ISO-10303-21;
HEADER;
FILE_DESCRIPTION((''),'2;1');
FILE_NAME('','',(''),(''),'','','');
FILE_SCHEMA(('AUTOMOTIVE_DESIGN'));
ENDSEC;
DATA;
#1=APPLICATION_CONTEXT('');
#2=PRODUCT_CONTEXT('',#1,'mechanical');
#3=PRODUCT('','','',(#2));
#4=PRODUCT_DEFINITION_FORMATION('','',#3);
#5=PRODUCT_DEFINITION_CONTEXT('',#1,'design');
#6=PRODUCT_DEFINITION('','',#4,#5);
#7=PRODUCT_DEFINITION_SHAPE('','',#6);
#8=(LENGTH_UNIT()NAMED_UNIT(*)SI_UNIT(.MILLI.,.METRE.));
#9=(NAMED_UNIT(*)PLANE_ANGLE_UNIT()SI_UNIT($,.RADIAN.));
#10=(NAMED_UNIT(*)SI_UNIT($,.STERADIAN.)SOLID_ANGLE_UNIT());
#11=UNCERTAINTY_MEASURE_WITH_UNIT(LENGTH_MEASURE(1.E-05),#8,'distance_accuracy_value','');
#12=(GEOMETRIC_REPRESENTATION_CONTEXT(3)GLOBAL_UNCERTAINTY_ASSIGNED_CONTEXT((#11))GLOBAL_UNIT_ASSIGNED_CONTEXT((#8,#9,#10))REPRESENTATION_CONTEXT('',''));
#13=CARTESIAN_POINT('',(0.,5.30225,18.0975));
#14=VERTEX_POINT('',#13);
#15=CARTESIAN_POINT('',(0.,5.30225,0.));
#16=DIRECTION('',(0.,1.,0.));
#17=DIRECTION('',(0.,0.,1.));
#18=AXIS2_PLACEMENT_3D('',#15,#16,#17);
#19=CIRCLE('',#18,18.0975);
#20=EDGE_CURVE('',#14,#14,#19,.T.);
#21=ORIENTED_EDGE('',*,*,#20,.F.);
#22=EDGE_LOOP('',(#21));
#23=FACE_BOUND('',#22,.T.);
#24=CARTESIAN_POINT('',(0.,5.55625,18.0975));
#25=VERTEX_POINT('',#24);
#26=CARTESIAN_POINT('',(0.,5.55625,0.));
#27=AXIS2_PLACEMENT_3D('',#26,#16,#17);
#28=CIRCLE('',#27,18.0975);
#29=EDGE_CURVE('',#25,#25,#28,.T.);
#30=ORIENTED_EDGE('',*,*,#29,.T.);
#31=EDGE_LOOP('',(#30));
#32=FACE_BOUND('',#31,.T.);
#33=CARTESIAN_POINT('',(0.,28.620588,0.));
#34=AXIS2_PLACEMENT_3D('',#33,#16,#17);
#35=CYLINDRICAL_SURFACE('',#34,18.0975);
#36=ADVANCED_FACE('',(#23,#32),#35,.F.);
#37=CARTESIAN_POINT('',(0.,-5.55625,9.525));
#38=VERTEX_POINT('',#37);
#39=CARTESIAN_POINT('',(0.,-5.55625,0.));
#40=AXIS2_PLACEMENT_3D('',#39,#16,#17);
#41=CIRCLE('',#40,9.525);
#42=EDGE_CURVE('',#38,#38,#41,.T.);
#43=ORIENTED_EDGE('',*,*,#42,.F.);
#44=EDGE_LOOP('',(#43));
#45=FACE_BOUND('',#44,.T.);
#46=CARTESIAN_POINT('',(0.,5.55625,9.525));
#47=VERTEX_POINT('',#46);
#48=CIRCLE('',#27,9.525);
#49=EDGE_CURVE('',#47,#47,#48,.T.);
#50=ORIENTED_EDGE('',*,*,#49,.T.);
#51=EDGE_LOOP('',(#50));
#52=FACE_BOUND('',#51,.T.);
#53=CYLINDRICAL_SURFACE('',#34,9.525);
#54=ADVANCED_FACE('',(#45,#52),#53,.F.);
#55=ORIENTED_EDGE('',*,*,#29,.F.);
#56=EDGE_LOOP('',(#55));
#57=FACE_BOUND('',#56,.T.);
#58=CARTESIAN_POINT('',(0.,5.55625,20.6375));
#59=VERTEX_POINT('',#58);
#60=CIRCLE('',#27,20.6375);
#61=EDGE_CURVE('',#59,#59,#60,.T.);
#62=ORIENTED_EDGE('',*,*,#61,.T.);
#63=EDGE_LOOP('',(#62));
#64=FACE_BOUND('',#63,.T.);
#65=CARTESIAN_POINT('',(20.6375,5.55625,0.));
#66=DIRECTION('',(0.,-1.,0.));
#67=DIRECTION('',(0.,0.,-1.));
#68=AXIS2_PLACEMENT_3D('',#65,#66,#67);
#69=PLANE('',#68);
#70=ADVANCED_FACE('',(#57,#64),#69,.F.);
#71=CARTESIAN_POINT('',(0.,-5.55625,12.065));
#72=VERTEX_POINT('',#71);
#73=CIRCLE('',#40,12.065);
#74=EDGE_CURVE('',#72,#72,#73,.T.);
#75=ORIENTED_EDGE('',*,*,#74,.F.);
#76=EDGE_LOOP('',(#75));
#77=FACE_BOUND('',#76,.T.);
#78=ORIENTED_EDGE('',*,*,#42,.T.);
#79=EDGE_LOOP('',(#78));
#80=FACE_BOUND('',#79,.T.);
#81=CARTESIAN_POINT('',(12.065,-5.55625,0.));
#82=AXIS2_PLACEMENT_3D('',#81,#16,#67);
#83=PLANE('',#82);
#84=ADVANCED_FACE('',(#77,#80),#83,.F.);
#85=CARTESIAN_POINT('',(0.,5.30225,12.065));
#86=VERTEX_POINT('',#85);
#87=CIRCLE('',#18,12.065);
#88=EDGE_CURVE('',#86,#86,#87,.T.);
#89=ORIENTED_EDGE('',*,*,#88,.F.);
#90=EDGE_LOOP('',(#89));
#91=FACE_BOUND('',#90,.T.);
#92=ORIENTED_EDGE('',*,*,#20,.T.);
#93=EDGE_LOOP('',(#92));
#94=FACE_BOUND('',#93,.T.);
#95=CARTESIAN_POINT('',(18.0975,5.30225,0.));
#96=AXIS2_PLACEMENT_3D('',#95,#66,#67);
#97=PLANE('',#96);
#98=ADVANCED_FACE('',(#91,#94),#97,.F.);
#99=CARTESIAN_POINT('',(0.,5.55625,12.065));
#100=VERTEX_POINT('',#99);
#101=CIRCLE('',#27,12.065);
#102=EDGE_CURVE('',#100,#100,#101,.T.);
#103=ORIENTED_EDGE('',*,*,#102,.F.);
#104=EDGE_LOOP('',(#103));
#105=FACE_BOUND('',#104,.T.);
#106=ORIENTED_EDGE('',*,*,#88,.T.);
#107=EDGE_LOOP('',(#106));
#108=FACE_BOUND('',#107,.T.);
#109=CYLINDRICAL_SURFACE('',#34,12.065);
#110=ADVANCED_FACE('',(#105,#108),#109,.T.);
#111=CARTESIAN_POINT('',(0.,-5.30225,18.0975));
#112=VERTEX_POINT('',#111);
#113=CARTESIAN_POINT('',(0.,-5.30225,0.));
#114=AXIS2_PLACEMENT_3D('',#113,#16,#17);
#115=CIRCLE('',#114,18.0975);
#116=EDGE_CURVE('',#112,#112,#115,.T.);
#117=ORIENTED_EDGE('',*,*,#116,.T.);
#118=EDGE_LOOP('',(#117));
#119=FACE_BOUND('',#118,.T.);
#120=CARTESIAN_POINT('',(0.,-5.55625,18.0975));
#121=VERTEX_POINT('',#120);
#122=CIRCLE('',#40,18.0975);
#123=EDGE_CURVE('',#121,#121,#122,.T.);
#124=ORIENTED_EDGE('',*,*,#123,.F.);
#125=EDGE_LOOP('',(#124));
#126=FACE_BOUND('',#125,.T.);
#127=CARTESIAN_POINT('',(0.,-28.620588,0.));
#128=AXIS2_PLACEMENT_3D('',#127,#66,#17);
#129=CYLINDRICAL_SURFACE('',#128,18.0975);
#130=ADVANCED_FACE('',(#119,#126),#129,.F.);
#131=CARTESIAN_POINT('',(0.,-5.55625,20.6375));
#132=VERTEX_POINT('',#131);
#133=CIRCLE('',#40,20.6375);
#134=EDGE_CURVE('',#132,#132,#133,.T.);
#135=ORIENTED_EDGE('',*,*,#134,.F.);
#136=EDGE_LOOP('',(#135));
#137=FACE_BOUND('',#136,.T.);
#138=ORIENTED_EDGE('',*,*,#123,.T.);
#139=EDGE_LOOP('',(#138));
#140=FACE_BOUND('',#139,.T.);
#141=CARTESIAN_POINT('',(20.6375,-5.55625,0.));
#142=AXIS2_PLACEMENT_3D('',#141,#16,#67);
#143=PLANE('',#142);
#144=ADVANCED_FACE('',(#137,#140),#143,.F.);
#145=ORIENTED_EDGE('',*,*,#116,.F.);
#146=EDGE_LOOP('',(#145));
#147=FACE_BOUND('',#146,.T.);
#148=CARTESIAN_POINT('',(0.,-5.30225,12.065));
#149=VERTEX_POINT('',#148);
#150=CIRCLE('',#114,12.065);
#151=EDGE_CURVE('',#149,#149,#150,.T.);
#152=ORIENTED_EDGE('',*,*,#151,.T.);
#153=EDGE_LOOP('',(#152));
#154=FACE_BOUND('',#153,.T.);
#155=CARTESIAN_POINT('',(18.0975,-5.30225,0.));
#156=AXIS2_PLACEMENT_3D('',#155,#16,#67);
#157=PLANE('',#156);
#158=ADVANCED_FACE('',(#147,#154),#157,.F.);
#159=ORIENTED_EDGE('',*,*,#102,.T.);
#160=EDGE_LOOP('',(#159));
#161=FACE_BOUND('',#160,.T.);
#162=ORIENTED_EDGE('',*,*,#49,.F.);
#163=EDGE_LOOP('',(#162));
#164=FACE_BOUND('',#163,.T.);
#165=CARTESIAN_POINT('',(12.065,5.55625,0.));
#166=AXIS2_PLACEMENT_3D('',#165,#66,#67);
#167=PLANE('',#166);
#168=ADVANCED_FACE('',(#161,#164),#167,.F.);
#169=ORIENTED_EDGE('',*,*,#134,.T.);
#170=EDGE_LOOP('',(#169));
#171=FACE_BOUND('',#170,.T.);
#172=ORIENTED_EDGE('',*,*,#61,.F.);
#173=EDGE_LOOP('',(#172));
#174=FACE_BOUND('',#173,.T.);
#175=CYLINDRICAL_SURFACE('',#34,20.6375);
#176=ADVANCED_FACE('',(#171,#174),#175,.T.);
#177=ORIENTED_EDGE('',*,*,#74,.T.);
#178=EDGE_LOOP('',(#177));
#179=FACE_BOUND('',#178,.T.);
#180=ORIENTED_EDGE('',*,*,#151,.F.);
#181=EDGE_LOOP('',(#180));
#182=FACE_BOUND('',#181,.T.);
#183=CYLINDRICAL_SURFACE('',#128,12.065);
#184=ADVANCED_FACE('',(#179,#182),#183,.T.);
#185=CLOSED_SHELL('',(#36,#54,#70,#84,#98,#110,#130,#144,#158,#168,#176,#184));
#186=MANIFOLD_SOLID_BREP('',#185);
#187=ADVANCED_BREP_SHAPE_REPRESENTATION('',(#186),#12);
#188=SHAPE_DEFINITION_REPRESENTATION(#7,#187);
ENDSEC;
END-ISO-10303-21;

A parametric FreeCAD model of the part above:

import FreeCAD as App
import Part
import Sketcher

V = App.Vector
Q = App.Units.Quantity

doc = App.newDocument("Part")
params = doc.addObject("Spreadsheet::Sheet", "Params")
for row, (alias, value) in enumerate([
    ("sketch1_width", "0.1 in"),
    ("sketch1_height", "0.01 in"),
    ("sketch1_width2", "0.4375 in"),
    ("sketch1_height2", "0.21875 in"),
    ("revolution_angle", "360 deg"),
], start=1):
    params.set(f"A{row}", alias)
    params.set(f"B{row}", "=" + value)
    params.setAlias(f"B{row}", alias)

body = doc.addObject("PartDesign::Body", "Body")

# Sketch on XY plane
sketch1 = body.newObject("Sketcher::SketchObject", "Sketch")
sketch1.AttachmentSupport = (doc.getObject("XY_Plane"), [""])
sketch1.MapMode = "FlatFace"
sketch1.addGeometry([
    Part.LineSegment(V(9.53, 0, 0), V(20.64, 0, 0)),  # 0
    Part.LineSegment(V(20.64, 0, 0), V(20.64, 5.56, 0)),  # 1
    Part.LineSegment(V(20.64, 5.56, 0), V(18.1, 5.56, 0)),  # 2
    Part.LineSegment(V(18.1, 5.56, 0), V(18.1, 5.3, 0)),  # 3
    Part.LineSegment(V(18.1, 5.3, 0), V(12.06, 5.3, 0)),  # 4
    Part.LineSegment(V(12.06, 5.3, 0), V(12.06, 5.56, 0)),  # 5
    Part.LineSegment(V(12.06, 5.56, 0), V(9.53, 5.56, 0)),  # 6
    Part.LineSegment(V(9.53, 5.56, 0), V(9.53, 0, 0)),  # 7
], False)
sketch1.addConstraint([
    Sketcher.Constraint("Coincident", 0, 2, 1, 1),
    Sketcher.Constraint("Coincident", 1, 2, 2, 1),
    Sketcher.Constraint("Coincident", 2, 2, 3, 1),
    Sketcher.Constraint("Coincident", 3, 2, 4, 1),
    Sketcher.Constraint("Coincident", 4, 2, 5, 1),
    Sketcher.Constraint("Coincident", 5, 2, 6, 1),
    Sketcher.Constraint("Coincident", 6, 2, 7, 1),
    Sketcher.Constraint("Coincident", 7, 2, 0, 1),
    Sketcher.Constraint("Horizontal", 0),
    Sketcher.Constraint("Vertical", 1),
    Sketcher.Constraint("Horizontal", 2),
    Sketcher.Constraint("Vertical", 3),
    Sketcher.Constraint("Horizontal", 4),
    Sketcher.Constraint("Vertical", 5),
    Sketcher.Constraint("Horizontal", 6),
    Sketcher.Constraint("Vertical", 7),
    Sketcher.Constraint("PointOnObject", 0, 2, -1),
    Sketcher.Constraint("Horizontal", 2, 2, 5, 2),
    Sketcher.Constraint("Equal", 2, 6),
    Sketcher.Constraint("DistanceX", 2, 2, 2, 1, Q("0.1 in")),
    Sketcher.Constraint("DistanceY", 3, 2, 3, 1, Q("0.01 in")),
    Sketcher.Constraint("DistanceX", 0, 1, 0, 2, Q("0.4375 in")),
    Sketcher.Constraint("DistanceY", 1, 1, 1, 2, Q("0.21875 in")),
    Sketcher.Constraint("DistanceX", -1, 1, 0, 2, Q("0.8125 in")),
])
sketch1.setExpression("Constraints[19]", "Params.sketch1_width")
sketch1.setExpression("Constraints[20]", "Params.sketch1_height")
sketch1.setExpression("Constraints[21]", "Params.sketch1_width2")
sketch1.setExpression("Constraints[22]", "Params.sketch1_height2")
revolution = body.newObject("PartDesign::Revolution", "Revolution")
revolution.Profile = sketch1
revolution.ReferenceAxis = (sketch1, ["V_Axis"])
revolution.setExpression("Angle", "Params.revolution_angle")
doc.recompute()

mirrored = body.newObject("PartDesign::Mirrored", "Mirrored")
mirrored.Originals = [revolution]
mirrored.MirrorPlane = (doc.getObject("XZ_Plane"), [""])
body.Tip = mirrored

doc.recompute()
